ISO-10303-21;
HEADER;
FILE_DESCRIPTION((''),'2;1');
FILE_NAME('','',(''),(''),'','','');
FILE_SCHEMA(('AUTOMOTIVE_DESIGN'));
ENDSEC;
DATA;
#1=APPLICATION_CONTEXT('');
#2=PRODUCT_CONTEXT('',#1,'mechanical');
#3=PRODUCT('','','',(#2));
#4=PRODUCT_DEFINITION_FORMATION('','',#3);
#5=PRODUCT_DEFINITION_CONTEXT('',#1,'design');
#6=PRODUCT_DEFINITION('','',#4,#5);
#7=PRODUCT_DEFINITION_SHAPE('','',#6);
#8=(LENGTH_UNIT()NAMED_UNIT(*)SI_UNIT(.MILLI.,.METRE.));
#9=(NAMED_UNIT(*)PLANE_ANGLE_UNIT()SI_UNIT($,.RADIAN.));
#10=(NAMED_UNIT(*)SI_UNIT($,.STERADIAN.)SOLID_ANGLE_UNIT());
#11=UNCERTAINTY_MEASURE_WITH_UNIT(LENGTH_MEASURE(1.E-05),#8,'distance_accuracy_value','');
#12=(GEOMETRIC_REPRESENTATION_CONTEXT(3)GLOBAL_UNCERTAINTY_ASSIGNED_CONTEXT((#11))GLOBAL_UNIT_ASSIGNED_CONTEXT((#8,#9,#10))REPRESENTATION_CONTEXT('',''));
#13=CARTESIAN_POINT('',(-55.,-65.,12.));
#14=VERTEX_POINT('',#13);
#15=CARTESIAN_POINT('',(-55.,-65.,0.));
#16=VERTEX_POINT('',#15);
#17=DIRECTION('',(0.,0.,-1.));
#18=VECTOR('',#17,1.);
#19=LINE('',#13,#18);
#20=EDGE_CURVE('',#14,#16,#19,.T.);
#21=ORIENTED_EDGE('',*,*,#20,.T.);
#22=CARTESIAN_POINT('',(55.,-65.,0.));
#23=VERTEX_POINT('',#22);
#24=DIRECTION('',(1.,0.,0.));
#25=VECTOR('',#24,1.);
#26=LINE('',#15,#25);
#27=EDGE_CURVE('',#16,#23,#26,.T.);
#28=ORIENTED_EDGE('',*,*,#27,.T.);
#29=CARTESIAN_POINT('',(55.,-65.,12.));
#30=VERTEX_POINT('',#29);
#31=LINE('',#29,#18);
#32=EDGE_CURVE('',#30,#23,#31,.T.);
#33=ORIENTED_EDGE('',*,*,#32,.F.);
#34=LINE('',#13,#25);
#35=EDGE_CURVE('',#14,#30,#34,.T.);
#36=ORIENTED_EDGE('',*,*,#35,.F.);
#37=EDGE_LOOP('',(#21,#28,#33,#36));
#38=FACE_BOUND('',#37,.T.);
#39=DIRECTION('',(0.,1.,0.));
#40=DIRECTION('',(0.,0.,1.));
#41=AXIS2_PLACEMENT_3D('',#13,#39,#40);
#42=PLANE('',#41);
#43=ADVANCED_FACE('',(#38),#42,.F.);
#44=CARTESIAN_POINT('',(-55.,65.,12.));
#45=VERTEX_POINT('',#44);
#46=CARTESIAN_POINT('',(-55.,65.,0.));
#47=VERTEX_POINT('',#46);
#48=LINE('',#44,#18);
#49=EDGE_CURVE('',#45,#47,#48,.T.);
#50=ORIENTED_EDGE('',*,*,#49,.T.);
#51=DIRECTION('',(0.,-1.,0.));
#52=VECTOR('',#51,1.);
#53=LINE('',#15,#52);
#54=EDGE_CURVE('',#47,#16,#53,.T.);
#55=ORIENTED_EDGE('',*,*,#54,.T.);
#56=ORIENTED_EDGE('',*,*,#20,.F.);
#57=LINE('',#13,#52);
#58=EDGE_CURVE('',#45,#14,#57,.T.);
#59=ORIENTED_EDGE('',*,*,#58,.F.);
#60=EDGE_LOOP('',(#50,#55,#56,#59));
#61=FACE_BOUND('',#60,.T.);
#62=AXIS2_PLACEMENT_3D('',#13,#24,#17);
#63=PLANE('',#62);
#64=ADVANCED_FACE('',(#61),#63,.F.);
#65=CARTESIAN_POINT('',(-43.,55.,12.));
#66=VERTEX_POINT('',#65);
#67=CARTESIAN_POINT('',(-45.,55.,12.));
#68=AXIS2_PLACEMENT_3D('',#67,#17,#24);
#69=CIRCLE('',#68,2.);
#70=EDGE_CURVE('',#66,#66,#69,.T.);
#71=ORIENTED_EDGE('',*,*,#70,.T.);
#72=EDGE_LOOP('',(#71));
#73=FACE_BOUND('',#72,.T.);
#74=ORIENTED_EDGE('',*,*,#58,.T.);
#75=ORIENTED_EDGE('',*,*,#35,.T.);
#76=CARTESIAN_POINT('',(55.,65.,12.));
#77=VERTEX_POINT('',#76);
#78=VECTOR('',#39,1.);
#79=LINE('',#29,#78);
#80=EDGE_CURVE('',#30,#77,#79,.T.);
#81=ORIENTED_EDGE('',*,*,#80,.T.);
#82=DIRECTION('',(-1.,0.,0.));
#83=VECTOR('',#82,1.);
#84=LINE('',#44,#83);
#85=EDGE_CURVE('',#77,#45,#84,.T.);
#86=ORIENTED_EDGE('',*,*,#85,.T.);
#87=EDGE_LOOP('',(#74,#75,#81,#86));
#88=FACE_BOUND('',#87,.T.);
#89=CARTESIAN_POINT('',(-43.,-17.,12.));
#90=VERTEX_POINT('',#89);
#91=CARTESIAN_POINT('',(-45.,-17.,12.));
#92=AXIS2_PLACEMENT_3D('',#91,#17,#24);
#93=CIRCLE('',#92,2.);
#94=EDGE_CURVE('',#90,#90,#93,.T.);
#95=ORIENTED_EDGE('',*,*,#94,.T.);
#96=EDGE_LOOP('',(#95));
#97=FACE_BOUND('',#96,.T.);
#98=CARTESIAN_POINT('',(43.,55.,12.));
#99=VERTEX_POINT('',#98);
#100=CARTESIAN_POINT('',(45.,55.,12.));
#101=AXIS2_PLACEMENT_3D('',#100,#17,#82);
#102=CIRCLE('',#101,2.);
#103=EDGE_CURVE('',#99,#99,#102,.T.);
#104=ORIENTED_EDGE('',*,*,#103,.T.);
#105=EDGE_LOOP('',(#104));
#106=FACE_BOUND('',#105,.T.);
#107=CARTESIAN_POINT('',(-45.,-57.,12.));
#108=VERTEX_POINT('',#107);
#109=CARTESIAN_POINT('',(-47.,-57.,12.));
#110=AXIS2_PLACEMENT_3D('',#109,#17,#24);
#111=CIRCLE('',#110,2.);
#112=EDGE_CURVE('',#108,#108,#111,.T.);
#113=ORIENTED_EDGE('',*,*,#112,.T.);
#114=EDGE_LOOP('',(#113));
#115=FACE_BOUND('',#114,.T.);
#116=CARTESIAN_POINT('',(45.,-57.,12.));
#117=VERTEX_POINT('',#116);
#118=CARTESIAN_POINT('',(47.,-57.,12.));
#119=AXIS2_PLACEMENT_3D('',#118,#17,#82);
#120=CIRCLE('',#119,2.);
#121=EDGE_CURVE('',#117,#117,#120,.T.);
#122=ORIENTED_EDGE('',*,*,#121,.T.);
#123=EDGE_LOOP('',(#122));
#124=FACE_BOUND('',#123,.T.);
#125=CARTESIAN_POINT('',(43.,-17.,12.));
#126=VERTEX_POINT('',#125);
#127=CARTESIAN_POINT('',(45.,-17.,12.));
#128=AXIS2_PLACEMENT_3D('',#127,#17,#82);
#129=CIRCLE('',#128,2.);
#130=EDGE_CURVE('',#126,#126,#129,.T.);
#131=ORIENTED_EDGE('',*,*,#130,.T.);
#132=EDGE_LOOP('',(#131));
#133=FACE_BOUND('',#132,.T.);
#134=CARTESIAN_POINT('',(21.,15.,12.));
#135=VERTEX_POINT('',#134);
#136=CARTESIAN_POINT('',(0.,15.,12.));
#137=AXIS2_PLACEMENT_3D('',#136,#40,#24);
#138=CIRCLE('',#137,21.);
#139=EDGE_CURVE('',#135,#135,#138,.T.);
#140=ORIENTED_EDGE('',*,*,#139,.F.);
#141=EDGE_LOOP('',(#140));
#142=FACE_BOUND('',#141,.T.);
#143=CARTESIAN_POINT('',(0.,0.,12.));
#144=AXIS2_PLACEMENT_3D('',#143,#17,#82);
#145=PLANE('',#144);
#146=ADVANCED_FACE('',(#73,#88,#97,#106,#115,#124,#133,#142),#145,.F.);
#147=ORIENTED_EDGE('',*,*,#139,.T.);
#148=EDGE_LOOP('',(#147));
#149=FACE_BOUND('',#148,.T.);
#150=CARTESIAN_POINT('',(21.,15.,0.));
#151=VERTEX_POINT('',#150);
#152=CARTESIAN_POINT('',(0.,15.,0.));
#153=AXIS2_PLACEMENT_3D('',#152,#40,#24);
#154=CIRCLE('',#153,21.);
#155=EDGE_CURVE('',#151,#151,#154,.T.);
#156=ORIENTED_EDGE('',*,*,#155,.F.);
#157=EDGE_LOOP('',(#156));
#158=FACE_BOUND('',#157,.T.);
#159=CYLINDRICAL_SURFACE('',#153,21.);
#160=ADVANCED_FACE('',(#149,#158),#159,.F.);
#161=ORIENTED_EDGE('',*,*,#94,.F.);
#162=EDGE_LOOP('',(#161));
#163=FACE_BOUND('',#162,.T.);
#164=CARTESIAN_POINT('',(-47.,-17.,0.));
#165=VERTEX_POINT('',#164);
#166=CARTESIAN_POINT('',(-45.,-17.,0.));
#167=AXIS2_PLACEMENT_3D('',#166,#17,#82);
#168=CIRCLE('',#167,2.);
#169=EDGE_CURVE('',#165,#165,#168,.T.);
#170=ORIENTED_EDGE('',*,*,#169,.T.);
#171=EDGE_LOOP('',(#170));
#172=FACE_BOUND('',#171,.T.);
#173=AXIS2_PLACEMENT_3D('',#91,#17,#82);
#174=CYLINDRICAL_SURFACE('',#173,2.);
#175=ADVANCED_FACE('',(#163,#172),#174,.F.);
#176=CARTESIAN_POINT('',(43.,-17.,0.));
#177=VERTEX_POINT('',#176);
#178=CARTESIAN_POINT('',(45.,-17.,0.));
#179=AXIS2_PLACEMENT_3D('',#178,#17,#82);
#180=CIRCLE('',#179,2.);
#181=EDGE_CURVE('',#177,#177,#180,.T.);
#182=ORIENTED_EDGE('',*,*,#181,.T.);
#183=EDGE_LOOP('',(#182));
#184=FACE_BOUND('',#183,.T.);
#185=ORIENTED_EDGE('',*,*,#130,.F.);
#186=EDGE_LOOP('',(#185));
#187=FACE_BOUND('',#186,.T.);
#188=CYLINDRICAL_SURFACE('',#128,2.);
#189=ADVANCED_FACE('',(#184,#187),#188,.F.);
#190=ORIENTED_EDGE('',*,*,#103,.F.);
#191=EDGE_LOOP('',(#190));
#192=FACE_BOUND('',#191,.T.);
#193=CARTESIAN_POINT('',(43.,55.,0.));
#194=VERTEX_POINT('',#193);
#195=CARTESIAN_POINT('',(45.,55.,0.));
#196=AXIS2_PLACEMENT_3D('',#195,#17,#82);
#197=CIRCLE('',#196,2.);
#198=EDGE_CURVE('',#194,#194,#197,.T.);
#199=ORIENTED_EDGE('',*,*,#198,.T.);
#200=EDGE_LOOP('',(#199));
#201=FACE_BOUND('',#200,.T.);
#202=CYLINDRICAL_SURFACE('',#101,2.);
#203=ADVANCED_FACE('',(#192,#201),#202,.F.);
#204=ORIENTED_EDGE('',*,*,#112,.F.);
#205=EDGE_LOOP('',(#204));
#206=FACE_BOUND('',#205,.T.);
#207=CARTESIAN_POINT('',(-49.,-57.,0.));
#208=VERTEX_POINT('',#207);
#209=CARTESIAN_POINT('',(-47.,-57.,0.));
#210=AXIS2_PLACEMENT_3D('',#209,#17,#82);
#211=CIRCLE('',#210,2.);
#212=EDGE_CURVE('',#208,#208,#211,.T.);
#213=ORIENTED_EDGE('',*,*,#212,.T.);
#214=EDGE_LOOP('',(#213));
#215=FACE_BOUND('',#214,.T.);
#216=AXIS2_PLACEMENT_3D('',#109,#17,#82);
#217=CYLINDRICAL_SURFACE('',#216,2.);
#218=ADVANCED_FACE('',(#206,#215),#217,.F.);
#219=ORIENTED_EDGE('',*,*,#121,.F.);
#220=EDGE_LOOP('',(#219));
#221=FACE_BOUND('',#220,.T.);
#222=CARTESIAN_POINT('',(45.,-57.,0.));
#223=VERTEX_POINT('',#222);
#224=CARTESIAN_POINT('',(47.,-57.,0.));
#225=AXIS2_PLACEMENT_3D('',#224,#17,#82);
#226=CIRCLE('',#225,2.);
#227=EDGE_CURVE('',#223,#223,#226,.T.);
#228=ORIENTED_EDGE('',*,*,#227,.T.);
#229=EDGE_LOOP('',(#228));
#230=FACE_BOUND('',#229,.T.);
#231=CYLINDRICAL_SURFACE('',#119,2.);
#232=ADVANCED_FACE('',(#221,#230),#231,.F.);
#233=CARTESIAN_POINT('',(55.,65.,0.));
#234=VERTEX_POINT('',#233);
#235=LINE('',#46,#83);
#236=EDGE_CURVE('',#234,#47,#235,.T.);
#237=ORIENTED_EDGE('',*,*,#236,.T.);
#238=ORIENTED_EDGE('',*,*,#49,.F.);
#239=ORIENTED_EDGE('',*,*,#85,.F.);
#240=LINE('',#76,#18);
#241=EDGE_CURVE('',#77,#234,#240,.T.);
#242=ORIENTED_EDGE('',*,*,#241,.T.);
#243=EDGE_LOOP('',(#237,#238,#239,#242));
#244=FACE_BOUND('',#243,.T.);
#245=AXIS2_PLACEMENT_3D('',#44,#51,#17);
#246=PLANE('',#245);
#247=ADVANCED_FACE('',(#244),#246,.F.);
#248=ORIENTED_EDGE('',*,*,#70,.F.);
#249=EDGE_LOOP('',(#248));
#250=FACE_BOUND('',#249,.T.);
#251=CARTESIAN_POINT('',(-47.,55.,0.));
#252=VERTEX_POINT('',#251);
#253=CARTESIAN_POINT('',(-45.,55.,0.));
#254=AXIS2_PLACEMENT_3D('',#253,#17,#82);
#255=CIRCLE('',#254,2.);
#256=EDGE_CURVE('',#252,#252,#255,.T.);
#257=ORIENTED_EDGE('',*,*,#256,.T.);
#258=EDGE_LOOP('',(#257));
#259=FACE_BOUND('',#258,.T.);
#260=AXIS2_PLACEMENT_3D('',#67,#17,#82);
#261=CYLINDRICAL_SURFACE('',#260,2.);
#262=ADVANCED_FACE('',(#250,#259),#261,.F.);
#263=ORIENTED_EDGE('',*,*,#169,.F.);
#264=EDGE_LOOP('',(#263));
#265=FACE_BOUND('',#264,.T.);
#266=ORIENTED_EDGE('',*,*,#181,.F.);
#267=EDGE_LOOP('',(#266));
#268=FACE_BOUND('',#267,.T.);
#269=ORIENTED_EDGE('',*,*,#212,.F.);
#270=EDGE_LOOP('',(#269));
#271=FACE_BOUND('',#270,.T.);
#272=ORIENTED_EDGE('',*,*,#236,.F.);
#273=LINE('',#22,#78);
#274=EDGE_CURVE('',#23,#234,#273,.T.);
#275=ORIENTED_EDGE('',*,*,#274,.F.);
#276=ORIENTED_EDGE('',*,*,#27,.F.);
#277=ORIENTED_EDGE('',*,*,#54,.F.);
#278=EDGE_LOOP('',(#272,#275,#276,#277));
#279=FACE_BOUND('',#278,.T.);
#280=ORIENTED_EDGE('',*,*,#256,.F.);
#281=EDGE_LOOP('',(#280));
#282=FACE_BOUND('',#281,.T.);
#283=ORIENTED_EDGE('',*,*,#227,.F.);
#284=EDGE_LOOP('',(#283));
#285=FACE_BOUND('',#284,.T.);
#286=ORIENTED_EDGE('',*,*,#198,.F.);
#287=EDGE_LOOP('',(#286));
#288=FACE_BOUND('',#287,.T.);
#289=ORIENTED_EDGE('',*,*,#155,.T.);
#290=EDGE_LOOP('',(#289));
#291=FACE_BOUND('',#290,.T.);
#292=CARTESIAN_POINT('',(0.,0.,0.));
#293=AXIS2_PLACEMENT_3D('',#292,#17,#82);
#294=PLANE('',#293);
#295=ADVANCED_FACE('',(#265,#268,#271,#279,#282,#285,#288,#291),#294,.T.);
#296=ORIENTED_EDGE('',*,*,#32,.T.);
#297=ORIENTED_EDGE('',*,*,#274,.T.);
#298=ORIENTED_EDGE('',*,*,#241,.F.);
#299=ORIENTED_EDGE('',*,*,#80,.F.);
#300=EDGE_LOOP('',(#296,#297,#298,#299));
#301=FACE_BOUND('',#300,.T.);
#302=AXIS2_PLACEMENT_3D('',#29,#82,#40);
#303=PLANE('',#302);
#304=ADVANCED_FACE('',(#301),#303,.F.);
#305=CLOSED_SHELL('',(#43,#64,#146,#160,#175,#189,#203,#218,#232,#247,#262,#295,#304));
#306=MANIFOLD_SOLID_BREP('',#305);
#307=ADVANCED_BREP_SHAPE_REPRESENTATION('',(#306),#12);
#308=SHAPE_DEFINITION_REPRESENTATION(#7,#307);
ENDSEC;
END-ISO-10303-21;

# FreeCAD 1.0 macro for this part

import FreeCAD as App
import Part
import Sketcher

V = App.Vector


def add_polygon(sketch, points):
    """Adds a closed chain of lines whose ends are joined by coincident constraints."""
    first, n = sketch.GeometryCount, len(points)
    for a, b in zip(points, points[1:] + points[:1]):
        sketch.addGeometry(Part.LineSegment(App.Vector(*a, 0), App.Vector(*b, 0)), False)
    for i in range(n):
        sketch.addConstraint(Sketcher.Constraint("Coincident", first + i, 2, first + (i + 1) % n, 1))

doc = App.newDocument("Part")
body = doc.addObject("PartDesign::Body", "Body")

sketch1 = body.newObject("Sketcher::SketchObject", "Sketch")
sketch1.AttachmentSupport = (doc.getObject("XY_Plane"), [""])
sketch1.MapMode = "FlatFace"
add_polygon(sketch1, [(-55, 65), (-55, -65), (55, -65), (55, 65)])
sketch1.addConstraint(Sketcher.Constraint("Vertical", 0))
sketch1.addConstraint(Sketcher.Constraint("Horizontal", 1))
sketch1.addConstraint(Sketcher.Constraint("Vertical", 2))
sketch1.addConstraint(Sketcher.Constraint("Horizontal", 3))
sketch1.addConstraint(Sketcher.Constraint("Symmetric", 0, 2, 2, 2, -1, 1))
sketch1.addConstraint(Sketcher.Constraint("DistanceX", 1, 1, 1, 2, 110.0))
sketch1.addConstraint(Sketcher.Constraint("DistanceY", 0, 2, 0, 1, 130.0))
pad1 = body.newObject("PartDesign::Pad", "Pad")
pad1.Profile = sketch1
pad1.Length = 12

sketch2 = body.newObject("Sketcher::SketchObject", "Sketch001")
sketch2.AttachmentSupport = (doc.getObject("XY_Plane"), [""])
sketch2.MapMode = "FlatFace"
sketch2.addGeometry(Part.Circle(V(45, 55, 0), V(0, 0, 1), 2), False)
sketch2.addGeometry(Part.Circle(V(45, -17, 0), V(0, 0, 1), 2), False)
sketch2.addGeometry(Part.Circle(V(47, -57, 0), V(0, 0, 1), 2), False)
sketch2.addGeometry(Part.Circle(V(-47, -57, 0), V(0, 0, 1), 2), False)
sketch2.addGeometry(Part.Circle(V(-45, -17, 0), V(0, 0, 1), 2), False)
sketch2.addGeometry(Part.Circle(V(-45, 55, 0), V(0, 0, 1), 2), False)
sketch2.addConstraint(Sketcher.Constraint("Equal", 0, 1))
sketch2.addConstraint(Sketcher.Constraint("Equal", 1, 2))
sketch2.addConstraint(Sketcher.Constraint("Equal", 2, 3))
sketch2.addConstraint(Sketcher.Constraint("Equal", 3, 4))
sketch2.addConstraint(Sketcher.Constraint("Equal", 4, 5))
sketch2.addConstraint(Sketcher.Constraint("Symmetric", 2, 3, 3, 3, -2))
sketch2.addConstraint(Sketcher.Constraint("Symmetric", 1, 3, 4, 3, -2))
sketch2.addConstraint(Sketcher.Constraint("Symmetric", 0, 3, 5, 3, -2))
sketch2.addConstraint(Sketcher.Constraint("Vertical", 0, 3, 1, 3))
sketch2.addConstraint(Sketcher.Constraint("Diameter", 0, 4.0))
sketch2.addConstraint(Sketcher.Constraint("DistanceX", -1, 1, 0, 3, 45.0))
sketch2.addConstraint(Sketcher.Constraint("DistanceY", -1, 1, 0, 3, 55.0))
sketch2.addConstraint(Sketcher.Constraint("DistanceY", 1, 3, -1, 1, 17.0))
sketch2.addConstraint(Sketcher.Constraint("DistanceX", -1, 1, 2, 3, 47.0))
sketch2.addConstraint(Sketcher.Constraint("DistanceY", 2, 3, -1, 1, 57.0))
pocket1 = body.newObject("PartDesign::Pocket", "Pocket")
pocket1.Profile = sketch2
pocket1.Type = "ThroughAll"
pocket1.Midplane = True

sketch3 = body.newObject("Sketcher::SketchObject", "Sketch002")
sketch3.AttachmentSupport = (doc.getObject("XY_Plane"), [""])
sketch3.MapMode = "FlatFace"
sketch3.AttachmentOffset = App.Placement(V(0, 0, 12), App.Rotation())
sketch3.addGeometry(Part.Circle(V(0, 15, 0), V(0, 0, 1), 21), False)
sketch3.addConstraint(Sketcher.Constraint("PointOnObject", 0, 3, -2))
sketch3.addConstraint(Sketcher.Constraint("Diameter", 0, 42.0))
sketch3.addConstraint(Sketcher.Constraint("DistanceY", -1, 1, 0, 3, 15.0))
pocket2 = body.newObject("PartDesign::Pocket", "Pocket001")
pocket2.Profile = sketch3
pocket2.Type = "ThroughAll"

doc.recompute()
